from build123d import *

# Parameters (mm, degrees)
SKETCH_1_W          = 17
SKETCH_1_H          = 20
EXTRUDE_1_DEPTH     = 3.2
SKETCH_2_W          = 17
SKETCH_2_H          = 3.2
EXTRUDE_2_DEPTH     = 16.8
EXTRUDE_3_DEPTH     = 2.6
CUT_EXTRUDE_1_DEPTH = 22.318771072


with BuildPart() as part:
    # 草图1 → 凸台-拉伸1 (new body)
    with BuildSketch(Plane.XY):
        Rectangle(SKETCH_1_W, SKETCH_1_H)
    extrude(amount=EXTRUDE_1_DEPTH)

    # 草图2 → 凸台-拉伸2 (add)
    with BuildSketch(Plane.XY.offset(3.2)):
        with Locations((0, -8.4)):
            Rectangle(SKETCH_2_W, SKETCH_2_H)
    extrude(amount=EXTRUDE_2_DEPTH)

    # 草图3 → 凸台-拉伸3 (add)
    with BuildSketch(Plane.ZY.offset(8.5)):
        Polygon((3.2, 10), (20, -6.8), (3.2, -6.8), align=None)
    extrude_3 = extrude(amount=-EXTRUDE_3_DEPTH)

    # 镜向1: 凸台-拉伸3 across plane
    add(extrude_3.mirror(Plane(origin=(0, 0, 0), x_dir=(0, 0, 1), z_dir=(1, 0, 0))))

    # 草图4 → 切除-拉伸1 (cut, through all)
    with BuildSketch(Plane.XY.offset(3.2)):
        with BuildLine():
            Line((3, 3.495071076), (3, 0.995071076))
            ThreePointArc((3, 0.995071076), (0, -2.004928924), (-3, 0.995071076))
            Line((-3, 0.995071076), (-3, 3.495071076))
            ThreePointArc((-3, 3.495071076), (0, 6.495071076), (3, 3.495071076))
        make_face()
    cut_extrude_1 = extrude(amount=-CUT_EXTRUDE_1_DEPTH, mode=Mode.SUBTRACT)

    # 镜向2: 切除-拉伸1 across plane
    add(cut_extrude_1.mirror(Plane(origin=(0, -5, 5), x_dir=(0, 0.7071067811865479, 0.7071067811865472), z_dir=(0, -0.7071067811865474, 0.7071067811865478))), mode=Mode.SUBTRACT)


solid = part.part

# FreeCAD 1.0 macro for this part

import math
import FreeCAD as App
import Part
import Sketcher
from FreeCAD import Vector
Q = App.Units.Quantity


def add_polygon(sketch, points):
    """Adds a closed chain of lines whose ends are joined by coincident constraints."""
    first, n = sketch.GeometryCount, len(points)
    for a, b in zip(points, points[1:] + points[:1]):
        sketch.addGeometry(Part.LineSegment(App.Vector(*a, 0), App.Vector(*b, 0)), False)
    for i in range(n):
        sketch.addConstraint(Sketcher.Constraint("Coincident", first + i, 2, first + (i + 1) % n, 1))

doc = App.newDocument("Part")
body = doc.addObject("PartDesign::Body", "Body")

# Sketch on XY plane
sketch1 = body.newObject("Sketcher::SketchObject", "Sketch")
sketch1.AttachmentSupport = (doc.getObject("XY_Plane"), [""])
sketch1.MapMode = "FlatFace"
add_polygon(sketch1, [(-8, 10), (-8, -10), (8, -10), (8, 10)])  # lines 0-3
sketch1.addConstraint([
    Sketcher.Constraint("Vertical", 0),
    Sketcher.Constraint("Horizontal", 1),
    Sketcher.Constraint("Vertical", 2),
    Sketcher.Constraint("Horizontal", 3),
    Sketcher.Constraint("Symmetric", 0, 2, 2, 2, -1, 1),
    Sketcher.Constraint("DistanceX", 1, 1, 1, 2, Q("17 mm")),
    Sketcher.Constraint("DistanceY", 0, 2, 0, 1, Q("20 mm")),
])
pad1 = body.newObject("PartDesign::Pad", "Pad")
pad1.Profile = sketch1
pad1.Length = 3.2

# Sketch on XY plane
sketch2 = body.newObject("Sketcher::SketchObject", "Sketch001")
sketch2.AttachmentSupport = (doc.getObject("XY_Plane"), [""])
sketch2.MapMode = "FlatFace"
sketch2.AttachmentOffset = App.Placement(Vector(0, 0, 3.2), App.Rotation())
add_polygon(sketch2, [(-8.5, -6.8), (-8.5, -10), (8.5, -10), (8.5, -6.8)])  # lines 0-3
sketch2.addConstraint([
    Sketcher.Constraint("Vertical", 0),
    Sketcher.Constraint("Horizontal", 1),
    Sketcher.Constraint("Vertical", 2),
    Sketcher.Constraint("Horizontal", 3),
    Sketcher.Constraint("DistanceX", 1, 1, 1, 2, Q("17 mm")),
    Sketcher.Constraint("DistanceY", 0, 2, 0, 1, Q("3.2 mm")),
    Sketcher.Constraint("DistanceY", 0, 2, -1, 1, Q("10 mm")),
    Sketcher.Constraint("DistanceX", 0, 2, -1, 1, Q("8.5 mm")),
])
pad2 = body.newObject("PartDesign::Pad", "Pad001")
pad2.Profile = sketch2
pad2.Length = 16.8

# Sketch on YZ plane
sketch3 = body.newObject("Sketcher::SketchObject", "Sketch002")
sketch3.AttachmentSupport = (doc.getObject("YZ_Plane"), [""])
sketch3.MapMode = "FlatFace"
sketch3.AttachmentOffset = App.Placement(Vector(0, 0, -8.5), App.Rotation())
add_polygon(sketch3, [(-7, 20), (10, 3), (-7, 3)])  # lines 0-2
sketch3.addConstraint([
    Sketcher.Constraint("Horizontal", 1),
    Sketcher.Constraint("Vertical", 2),
    Sketcher.Constraint("Equal", 1, 2),
    Sketcher.Constraint("DistanceX", 1, 2, 1, 1, Q("16.8 mm")),
    Sketcher.Constraint("DistanceX", -1, 1, 0, 2, Q("10 mm")),
    Sketcher.Constraint("DistanceY", -1, 1, 2, 2, Q("20 mm")),
])
pad3 = body.newObject("PartDesign::Pad", "Pad002")
pad3.Profile = sketch3
pad3.Length = 2.6
doc.recompute()

mirrored = body.newObject("PartDesign::Mirrored", "Mirrored")
mirrored.Originals = [pad3]
mirrored.MirrorPlane = (doc.getObject("YZ_Plane"), [""])
body.Tip = mirrored

# Sketch on XY plane
sketch4 = body.newObject("Sketcher::SketchObject", "Sketch003")
sketch4.AttachmentSupport = (doc.getObject("XY_Plane"), [""])
sketch4.MapMode = "FlatFace"
sketch4.AttachmentOffset = App.Placement(Vector(0, 0, 3.2), App.Rotation())
sketch4.addGeometry([
    Part.LineSegment(Vector(3, 1, 0), Vector(3, 3.5, 0)),
    Part.ArcOfCircle(Part.Circle(Vector(0, 3.5, 0), Vector(0, 0, 1), 3), math.radians(0), math.radians(180)),
    Part.LineSegment(Vector(-3, 3.5, 0), Vector(-3, 1, 0)),
    Part.ArcOfCircle(Part.Circle(Vector(0, 1, 0), Vector(0, 0, 1), 3), math.radians(180), math.radians(360)),
], False)
sketch4.addConstraint([
    Sketcher.Constraint("Tangent", 0, 2, 1, 1),
    Sketcher.Constraint("Tangent", 1, 2, 2, 1),
    Sketcher.Constraint("Tangent", 2, 2, 3, 1),
    Sketcher.Constraint("Tangent", 3, 2, 0, 1),
    Sketcher.Constraint("Vertical", 0),
    Sketcher.Constraint("Vertical", 2),
    Sketcher.Constraint("PointOnObject", 1, 3, -2),
    Sketcher.Constraint("Radius", 1, Q("3 mm")),
    Sketcher.Constraint("DistanceY", 0, 1, 0, 2, Q("2.5 mm")),
    Sketcher.Constraint("DistanceY", -1, 1, 1, 3, Q("3.495071 mm")),
])
pocket1 = body.newObject("PartDesign::Pocket", "Pocket")
pocket1.Profile = sketch4
pocket1.Type = "ThroughAll"
doc.recompute()

datumplane = body.newObject("PartDesign::Plane", "DatumPlane")
datumplane.Placement = App.Placement(Vector(0, -5, 5), App.Rotation(Vector(0, 0.707106781, 0.707106781), Vector(-1, 0, 0), Vector(0, -0.707106781, 0.707106781), "ZXY"))
mirrored2 = body.newObject("PartDesign::Mirrored", "Mirrored001")
mirrored2.Originals = [pocket1]
mirrored2.MirrorPlane = (datumplane, [""])
body.Tip = mirrored2

doc.recompute()
